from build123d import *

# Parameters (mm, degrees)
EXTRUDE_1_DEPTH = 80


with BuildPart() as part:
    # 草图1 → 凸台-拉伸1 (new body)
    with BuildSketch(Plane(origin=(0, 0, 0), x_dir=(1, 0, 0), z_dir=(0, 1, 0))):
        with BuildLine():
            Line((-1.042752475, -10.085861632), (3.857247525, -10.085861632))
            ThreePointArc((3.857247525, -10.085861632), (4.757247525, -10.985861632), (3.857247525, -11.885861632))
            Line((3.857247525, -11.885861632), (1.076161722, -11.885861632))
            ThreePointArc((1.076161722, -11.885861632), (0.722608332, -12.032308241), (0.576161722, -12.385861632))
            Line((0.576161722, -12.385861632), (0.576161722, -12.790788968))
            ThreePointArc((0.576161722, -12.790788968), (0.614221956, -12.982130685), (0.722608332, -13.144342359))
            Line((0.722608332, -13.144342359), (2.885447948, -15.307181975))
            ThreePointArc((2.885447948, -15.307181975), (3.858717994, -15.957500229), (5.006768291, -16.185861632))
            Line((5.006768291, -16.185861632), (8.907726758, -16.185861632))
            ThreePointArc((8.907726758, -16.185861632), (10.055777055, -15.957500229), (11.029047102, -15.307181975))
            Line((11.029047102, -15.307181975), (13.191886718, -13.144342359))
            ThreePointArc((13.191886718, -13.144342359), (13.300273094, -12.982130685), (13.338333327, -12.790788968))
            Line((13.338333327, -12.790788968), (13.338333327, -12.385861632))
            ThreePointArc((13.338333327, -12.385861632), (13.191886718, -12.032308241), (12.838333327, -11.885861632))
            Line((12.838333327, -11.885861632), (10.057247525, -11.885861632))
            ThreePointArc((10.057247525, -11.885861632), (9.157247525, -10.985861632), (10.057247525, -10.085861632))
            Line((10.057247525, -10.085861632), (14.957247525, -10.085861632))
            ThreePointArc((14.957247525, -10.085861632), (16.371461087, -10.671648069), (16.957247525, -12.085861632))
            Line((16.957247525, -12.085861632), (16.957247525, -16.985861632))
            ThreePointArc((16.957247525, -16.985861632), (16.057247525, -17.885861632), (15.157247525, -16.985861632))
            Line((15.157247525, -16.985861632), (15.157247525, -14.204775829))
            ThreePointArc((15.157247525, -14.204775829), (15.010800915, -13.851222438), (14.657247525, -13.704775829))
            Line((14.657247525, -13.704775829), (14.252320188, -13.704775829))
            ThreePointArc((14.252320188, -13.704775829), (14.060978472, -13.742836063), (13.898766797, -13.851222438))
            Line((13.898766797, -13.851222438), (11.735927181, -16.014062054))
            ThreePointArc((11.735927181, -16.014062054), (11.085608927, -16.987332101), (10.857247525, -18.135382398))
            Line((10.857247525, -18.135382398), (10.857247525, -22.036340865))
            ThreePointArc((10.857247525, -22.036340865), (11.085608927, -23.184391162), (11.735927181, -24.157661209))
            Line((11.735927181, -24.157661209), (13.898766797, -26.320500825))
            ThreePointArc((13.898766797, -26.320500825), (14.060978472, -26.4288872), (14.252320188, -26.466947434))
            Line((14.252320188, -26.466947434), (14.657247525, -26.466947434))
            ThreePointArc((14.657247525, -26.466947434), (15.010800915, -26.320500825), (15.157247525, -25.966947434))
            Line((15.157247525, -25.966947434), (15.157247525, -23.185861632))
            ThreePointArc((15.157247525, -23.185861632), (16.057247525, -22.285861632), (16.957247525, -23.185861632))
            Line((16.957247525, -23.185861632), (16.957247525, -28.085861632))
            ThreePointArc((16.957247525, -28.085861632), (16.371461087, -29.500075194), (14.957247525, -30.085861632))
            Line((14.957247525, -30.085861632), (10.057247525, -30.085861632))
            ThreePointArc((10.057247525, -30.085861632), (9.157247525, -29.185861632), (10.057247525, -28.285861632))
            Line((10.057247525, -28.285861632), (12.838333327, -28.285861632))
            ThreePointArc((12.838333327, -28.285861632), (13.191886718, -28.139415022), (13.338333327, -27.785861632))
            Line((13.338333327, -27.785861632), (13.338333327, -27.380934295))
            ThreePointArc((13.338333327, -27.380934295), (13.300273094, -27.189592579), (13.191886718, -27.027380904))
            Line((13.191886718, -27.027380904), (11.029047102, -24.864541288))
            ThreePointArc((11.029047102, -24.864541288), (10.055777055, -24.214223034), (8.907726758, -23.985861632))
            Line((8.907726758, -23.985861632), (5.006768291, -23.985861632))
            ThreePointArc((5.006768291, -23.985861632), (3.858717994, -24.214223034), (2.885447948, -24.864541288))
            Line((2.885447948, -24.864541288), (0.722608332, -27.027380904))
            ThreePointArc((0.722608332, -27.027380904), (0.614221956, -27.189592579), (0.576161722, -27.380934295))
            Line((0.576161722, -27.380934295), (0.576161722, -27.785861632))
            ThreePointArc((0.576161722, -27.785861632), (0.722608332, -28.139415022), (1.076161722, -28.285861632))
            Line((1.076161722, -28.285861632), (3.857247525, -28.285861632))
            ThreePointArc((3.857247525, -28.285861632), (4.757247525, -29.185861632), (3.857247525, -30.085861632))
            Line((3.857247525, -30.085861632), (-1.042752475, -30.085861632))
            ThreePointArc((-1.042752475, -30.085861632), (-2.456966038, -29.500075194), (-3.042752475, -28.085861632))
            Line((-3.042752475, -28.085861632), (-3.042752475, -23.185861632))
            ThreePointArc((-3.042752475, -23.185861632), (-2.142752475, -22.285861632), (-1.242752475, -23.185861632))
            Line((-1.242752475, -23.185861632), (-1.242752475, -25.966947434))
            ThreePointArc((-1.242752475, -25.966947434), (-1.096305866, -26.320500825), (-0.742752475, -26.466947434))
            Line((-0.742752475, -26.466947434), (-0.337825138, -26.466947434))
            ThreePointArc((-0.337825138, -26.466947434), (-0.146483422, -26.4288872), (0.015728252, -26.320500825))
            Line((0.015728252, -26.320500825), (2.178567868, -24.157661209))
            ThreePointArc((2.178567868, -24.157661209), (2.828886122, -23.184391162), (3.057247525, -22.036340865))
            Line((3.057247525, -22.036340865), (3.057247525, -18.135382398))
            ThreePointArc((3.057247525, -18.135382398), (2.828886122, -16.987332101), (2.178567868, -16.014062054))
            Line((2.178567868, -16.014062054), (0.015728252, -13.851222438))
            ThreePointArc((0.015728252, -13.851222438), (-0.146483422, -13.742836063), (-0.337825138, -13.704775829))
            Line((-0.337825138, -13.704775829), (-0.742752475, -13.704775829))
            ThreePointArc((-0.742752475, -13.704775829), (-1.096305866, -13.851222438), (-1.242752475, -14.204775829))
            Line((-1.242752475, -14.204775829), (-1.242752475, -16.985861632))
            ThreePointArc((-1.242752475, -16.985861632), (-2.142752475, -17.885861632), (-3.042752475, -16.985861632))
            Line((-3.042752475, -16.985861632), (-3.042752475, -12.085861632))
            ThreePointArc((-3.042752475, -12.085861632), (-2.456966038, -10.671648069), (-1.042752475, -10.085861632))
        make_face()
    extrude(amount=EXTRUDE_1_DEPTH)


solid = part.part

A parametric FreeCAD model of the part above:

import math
import FreeCAD as App
import Part
import Sketcher
from FreeCAD import Vector

doc = App.newDocument("Part")
body = doc.addObject("PartDesign::Body", "Body")

sketch1 = body.newObject("Sketcher::SketchObject", "Sketch")
sketch1.AttachmentSupport = (doc.getObject("XZ_Plane"), [""])
sketch1.MapMode = "FlatFace"
sketch1.addGeometry([
    Part.LineSegment(Vector(3.86, 10.09, 0), Vector(-1.04, 10.09, 0)),
    Part.ArcOfCircle(Part.Circle(Vector(-1.04, 12.09, 0), Vector(0, 0, 1), 2), math.radians(180), math.radians(270)),
    Part.LineSegment(Vector(-3.04, 12.09, 0), Vector(-3.04, 16.99, 0)),
    Part.ArcOfCircle(Part.Circle(Vector(-2.14, 16.99, 0), Vector(0, 0, 1), 0.9), math.radians(0), math.radians(180)),
    Part.LineSegment(Vector(-1.24, 16.99, 0), Vector(-1.24, 14.2, 0)),
    Part.ArcOfCircle(Part.Circle(Vector(-0.74, 14.2, 0), Vector(0, 0, 1), 0.5), math.radians(180), math.radians(270)),
    Part.LineSegment(Vector(-0.74, 13.7, 0), Vector(-0.34, 13.7, 0)),
    Part.ArcOfCircle(Part.Circle(Vector(-0.34, 14.2, 0), Vector(0, 0, 1), 0.5), math.radians(-90), math.radians(-45)),
    Part.LineSegment(Vector(0.02, 13.85, 0), Vector(2.18, 16.01, 0)),
    Part.ArcOfCircle(Part.Circle(Vector(0.06, 18.14, 0), Vector(0, 0, 1), 3), math.radians(-45), math.radians(0)),
    Part.LineSegment(Vector(3.06, 18.14, 0), Vector(3.06, 22.04, 0)),
    Part.ArcOfCircle(Part.Circle(Vector(0.06, 22.04, 0), Vector(0, 0, 1), 3), math.radians(0), math.radians(45)),
    Part.LineSegment(Vector(2.18, 24.16, 0), Vector(0.02, 26.32, 0)),
    Part.ArcOfCircle(Part.Circle(Vector(-0.34, 25.97, 0), Vector(0, 0, 1), 0.5), math.radians(45), math.radians(90)),
    Part.LineSegment(Vector(-0.34, 26.47, 0), Vector(-0.74, 26.47, 0)),
    Part.ArcOfCircle(Part.Circle(Vector(-0.74, 25.97, 0), Vector(0, 0, 1), 0.5), math.radians(90), math.radians(180)),
    Part.LineSegment(Vector(-1.24, 25.97, 0), Vector(-1.24, 23.19, 0)),
    Part.ArcOfCircle(Part.Circle(Vector(-2.14, 23.19, 0), Vector(0, 0, 1), 0.9), math.radians(180), math.radians(360)),
    Part.LineSegment(Vector(-3.04, 23.19, 0), Vector(-3.04, 28.09, 0)),
    Part.ArcOfCircle(Part.Circle(Vector(-1.04, 28.09, 0), Vector(0, 0, 1), 2), math.radians(90), math.radians(180)),
    Part.LineSegment(Vector(-1.04, 30.09, 0), Vector(3.86, 30.09, 0)),
    Part.ArcOfCircle(Part.Circle(Vector(3.86, 29.19, 0), Vector(0, 0, 1), 0.9), math.radians(-90), math.radians(90)),
    Part.LineSegment(Vector(3.86, 28.29, 0), Vector(1.08, 28.29, 0)),
    Part.ArcOfCircle(Part.Circle(Vector(1.08, 27.79, 0), Vector(0, 0, 1), 0.5), math.radians(90), math.radians(180)),
    Part.LineSegment(Vector(0.58, 27.79, 0), Vector(0.58, 27.38, 0)),
    Part.ArcOfCircle(Part.Circle(Vector(1.08, 27.38, 0), Vector(0, 0, 1), 0.5), math.radians(-180), math.radians(-135)),
    Part.LineSegment(Vector(0.72, 27.03, 0), Vector(2.89, 24.86, 0)),
    Part.ArcOfCircle(Part.Circle(Vector(5.01, 26.99, 0), Vector(0, 0, 1), 3), math.radians(-135), math.radians(-90)),
    Part.LineSegment(Vector(5.01, 23.99, 0), Vector(8.91, 23.99, 0)),
    Part.ArcOfCircle(Part.Circle(Vector(8.91, 26.99, 0), Vector(0, 0, 1), 3), math.radians(-90), math.radians(-45)),
    Part.LineSegment(Vector(11.03, 24.86, 0), Vector(13.19, 27.03, 0)),
    Part.ArcOfCircle(Part.Circle(Vector(12.84, 27.38, 0), Vector(0, 0, 1), 0.5), math.radians(-45), math.radians(0)),
    Part.LineSegment(Vector(13.34, 27.38, 0), Vector(13.34, 27.79, 0)),
    Part.ArcOfCircle(Part.Circle(Vector(12.84, 27.79, 0), Vector(0, 0, 1), 0.5), math.radians(0), math.radians(90)),
    Part.LineSegment(Vector(12.84, 28.29, 0), Vector(10.06, 28.29, 0)),
    Part.ArcOfCircle(Part.Circle(Vector(10.06, 29.19, 0), Vector(0, 0, 1), 0.9), math.radians(90), math.radians(270)),
    Part.LineSegment(Vector(10.06, 30.09, 0), Vector(14.96, 30.09, 0)),
    Part.ArcOfCircle(Part.Circle(Vector(14.96, 28.09, 0), Vector(0, 0, 1), 2), math.radians(0), math.radians(90)),
    Part.LineSegment(Vector(16.96, 28.09, 0), Vector(16.96, 23.19, 0)),
    Part.ArcOfCircle(Part.Circle(Vector(16.06, 23.19, 0), Vector(0, 0, 1), 0.9), math.radians(180), math.radians(360)),
    Part.LineSegment(Vector(15.16, 23.19, 0), Vector(15.16, 25.97, 0)),
    Part.ArcOfCircle(Part.Circle(Vector(14.66, 25.97, 0), Vector(0, 0, 1), 0.5), math.radians(0), math.radians(90)),
    Part.LineSegment(Vector(14.66, 26.47, 0), Vector(14.25, 26.47, 0)),
    Part.ArcOfCircle(Part.Circle(Vector(14.25, 25.97, 0), Vector(0, 0, 1), 0.5), math.radians(90), math.radians(135)),
    Part.LineSegment(Vector(13.9, 26.32, 0), Vector(11.74, 24.16, 0)),
    Part.ArcOfCircle(Part.Circle(Vector(13.86, 22.04, 0), Vector(0, 0, 1), 3), math.radians(135), math.radians(180)),
    Part.LineSegment(Vector(10.86, 22.04, 0), Vector(10.86, 18.14, 0)),
    Part.ArcOfCircle(Part.Circle(Vector(13.86, 18.14, 0), Vector(0, 0, 1), 3), math.radians(180), math.radians(225)),
    Part.LineSegment(Vector(11.74, 16.01, 0), Vector(13.9, 13.85, 0)),
    Part.ArcOfCircle(Part.Circle(Vector(14.25, 14.2, 0), Vector(0, 0, 1), 0.5), math.radians(-135), math.radians(-90)),
    Part.LineSegment(Vector(14.25, 13.7, 0), Vector(14.66, 13.7, 0)),
    Part.ArcOfCircle(Part.Circle(Vector(14.66, 14.2, 0), Vector(0, 0, 1), 0.5), math.radians(-90), math.radians(0)),
    Part.LineSegment(Vector(15.16, 14.2, 0), Vector(15.16, 16.99, 0)),
    Part.ArcOfCircle(Part.Circle(Vector(16.06, 16.99, 0), Vector(0, 0, 1), 0.9), math.radians(0), math.radians(180)),
    Part.LineSegment(Vector(16.96, 16.99, 0), Vector(16.96, 12.09, 0)),
    Part.ArcOfCircle(Part.Circle(Vector(14.96, 12.09, 0), Vector(0, 0, 1), 2), math.radians(-90), math.radians(0)),
    Part.LineSegment(Vector(14.96, 10.09, 0), Vector(10.06, 10.09, 0)),
    Part.ArcOfCircle(Part.Circle(Vector(10.06, 10.99, 0), Vector(0, 0, 1), 0.9), math.radians(90), math.radians(270)),
    Part.LineSegment(Vector(10.06, 11.89, 0), Vector(12.84, 11.89, 0)),
    Part.ArcOfCircle(Part.Circle(Vector(12.84, 12.39, 0), Vector(0, 0, 1), 0.5), math.radians(-90), math.radians(0)),
    Part.LineSegment(Vector(13.34, 12.39, 0), Vector(13.34, 12.79, 0)),
    Part.ArcOfCircle(Part.Circle(Vector(12.84, 12.79, 0), Vector(0, 0, 1), 0.5), math.radians(0), math.radians(45)),
    Part.LineSegment(Vector(13.19, 13.14, 0), Vector(11.03, 15.31, 0)),
    Part.ArcOfCircle(Part.Circle(Vector(8.91, 13.19, 0), Vector(0, 0, 1), 3), math.radians(45), math.radians(90)),
    Part.LineSegment(Vector(8.91, 16.19, 0), Vector(5.01, 16.19, 0)),
    Part.ArcOfCircle(Part.Circle(Vector(5.01, 13.19, 0), Vector(0, 0, 1), 3), math.radians(90), math.radians(135)),
    Part.LineSegment(Vector(2.89, 15.31, 0), Vector(0.72, 13.14, 0)),
    Part.ArcOfCircle(Part.Circle(Vector(1.08, 12.79, 0), Vector(0, 0, 1), 0.5), math.radians(135), math.radians(180)),
    Part.LineSegment(Vector(0.58, 12.79, 0), Vector(0.58, 12.39, 0)),
    Part.ArcOfCircle(Part.Circle(Vector(1.08, 12.39, 0), Vector(0, 0, 1), 0.5), math.radians(180), math.radians(270)),
    Part.LineSegment(Vector(1.08, 11.89, 0), Vector(3.86, 11.89, 0)),
    Part.ArcOfCircle(Part.Circle(Vector(3.86, 10.99, 0), Vector(0, 0, 1), 0.9), math.radians(-90), math.radians(90)),
], False)
sketch1.addConstraint([
    Sketcher.Constraint("Tangent", 0, 2, 1, 2),
    Sketcher.Constraint("Tangent", 1, 1, 2, 1),
    Sketcher.Constraint("Tangent", 2, 2, 3, 2),
    Sketcher.Constraint("Tangent", 3, 1, 4, 1),
    Sketcher.Constraint("Tangent", 4, 2, 5, 1),
    Sketcher.Constraint("Tangent", 5, 2, 6, 1),
    Sketcher.Constraint("Tangent", 6, 2, 7, 1),
    Sketcher.Constraint("Tangent", 7, 2, 8, 1),
    Sketcher.Constraint("Tangent", 8, 2, 9, 1),
    Sketcher.Constraint("Tangent", 9, 2, 10, 1),
    Sketcher.Constraint("Tangent", 10, 2, 11, 1),
    Sketcher.Constraint("Tangent", 11, 2, 12, 1),
    Sketcher.Constraint("Tangent", 12, 2, 13, 1),
    Sketcher.Constraint("Tangent", 13, 2, 14, 1),
    Sketcher.Constraint("Tangent", 14, 2, 15, 1),
    Sketcher.Constraint("Tangent", 15, 2, 16, 1),
    Sketcher.Constraint("Tangent", 16, 2, 17, 2),
    Sketcher.Constraint("Tangent", 17, 1, 18, 1),
    Sketcher.Constraint("Tangent", 18, 2, 19, 2),
    Sketcher.Constraint("Tangent", 19, 1, 20, 1),
    Sketcher.Constraint("Tangent", 20, 2, 21, 2),
    Sketcher.Constraint("Tangent", 21, 1, 22, 1),
    Sketcher.Constraint("Tangent", 22, 2, 23, 1),
    Sketcher.Constraint("Tangent", 23, 2, 24, 1),
    Sketcher.Constraint("Tangent", 24, 2, 25, 1),
    Sketcher.Constraint("Tangent", 25, 2, 26, 1),
    Sketcher.Constraint("Tangent", 26, 2, 27, 1),
    Sketcher.Constraint("Tangent", 27, 2, 28, 1),
    Sketcher.Constraint("Tangent", 28, 2, 29, 1),
    Sketcher.Constraint("Tangent", 29, 2, 30, 1),
    Sketcher.Constraint("Tangent", 30, 2, 31, 1),
    Sketcher.Constraint("Tangent", 31, 2, 32, 1),
    Sketcher.Constraint("Tangent", 32, 2, 33, 1),
    Sketcher.Constraint("Tangent", 33, 2, 34, 1),
    Sketcher.Constraint("Tangent", 34, 2, 35, 2),
    Sketcher.Constraint("Tangent", 35, 1, 36, 1),
    Sketcher.Constraint("Tangent", 36, 2, 37, 2),
    Sketcher.Constraint("Tangent", 37, 1, 38, 1),
    Sketcher.Constraint("Tangent", 38, 2, 39, 2),
    Sketcher.Constraint("Tangent", 39, 1, 40, 1),
    Sketcher.Constraint("Tangent", 40, 2, 41, 1),
    Sketcher.Constraint("Tangent", 41, 2, 42, 1),
    Sketcher.Constraint("Tangent", 42, 2, 43, 1),
    Sketcher.Constraint("Tangent", 43, 2, 44, 1),
    Sketcher.Constraint("Tangent", 44, 2, 45, 1),
    Sketcher.Constraint("Tangent", 45, 2, 46, 1),
    Sketcher.Constraint("Tangent", 46, 2, 47, 1),
    Sketcher.Constraint("Tangent", 47, 2, 48, 1),
    Sketcher.Constraint("Tangent", 48, 2, 49, 1),
    Sketcher.Constraint("Tangent", 49, 2, 50, 1),
    Sketcher.Constraint("Tangent", 50, 2, 51, 1),
    Sketcher.Constraint("Tangent", 51, 2, 52, 1),
    Sketcher.Constraint("Tangent", 52, 2, 53, 2),
    Sketcher.Constraint("Tangent", 53, 1, 54, 1),
    Sketcher.Constraint("Tangent", 54, 2, 55, 2),
    Sketcher.Constraint("Tangent", 55, 1, 56, 1),
    Sketcher.Constraint("Tangent", 56, 2, 57, 2),
    Sketcher.Constraint("Tangent", 57, 1, 58, 1),
    Sketcher.Constraint("Tangent", 58, 2, 59, 1),
    Sketcher.Constraint("Tangent", 59, 2, 60, 1),
    Sketcher.Constraint("Tangent", 60, 2, 61, 1),
    Sketcher.Constraint("Tangent", 61, 2, 62, 1),
    Sketcher.Constraint("Tangent", 62, 2, 63, 1),
    Sketcher.Constraint("Tangent", 63, 2, 64, 1),
    Sketcher.Constraint("Tangent", 64, 2, 65, 1),
    Sketcher.Constraint("Tangent", 65, 2, 66, 1),
    Sketcher.Constraint("Tangent", 66, 2, 67, 1),
    Sketcher.Constraint("Tangent", 67, 2, 68, 1),
    Sketcher.Constraint("Tangent", 68, 2, 69, 1),
    Sketcher.Constraint("Tangent", 69, 2, 70, 1),
    Sketcher.Constraint("Tangent", 70, 2, 71, 2),
    Sketcher.Constraint("Tangent", 71, 1, 0, 1),
    Sketcher.Constraint("Horizontal", 0),
    Sketcher.Constraint("Vertical", 2),
    Sketcher.Constraint("Vertical", 4),
    Sketcher.Constraint("Horizontal", 6),
    Sketcher.Constraint("Vertical", 10),
    Sketcher.Constraint("Horizontal", 14),
    Sketcher.Constraint("Vertical", 16),
    Sketcher.Constraint("Vertical", 18),
    Sketcher.Constraint("Horizontal", 20),
    Sketcher.Constraint("Horizontal", 22),
    Sketcher.Constraint("Vertical", 24),
    Sketcher.Constraint("Horizontal", 28),
    Sketcher.Constraint("Vertical", 32),
    Sketcher.Constraint("Horizontal", 34),
    Sketcher.Constraint("Horizontal", 36),
    Sketcher.Constraint("Vertical", 38),
    Sketcher.Constraint("Vertical", 40),
    Sketcher.Constraint("Horizontal", 42),
    Sketcher.Constraint("Vertical", 46),
    Sketcher.Constraint("Horizontal", 50),
    Sketcher.Constraint("Vertical", 52),
    Sketcher.Constraint("Vertical", 54),
    Sketcher.Constraint("Horizontal", 56),
    Sketcher.Constraint("Horizontal", 58),
    Sketcher.Constraint("Vertical", 60),
    Sketcher.Constraint("Horizontal", 64),
    Sketcher.Constraint("Vertical", 68),
    Sketcher.Constraint("Horizontal", 70),
    Sketcher.Constraint("Equal", 5, 7),
    Sketcher.Constraint("Equal", 9, 11),
    Sketcher.Constraint("Equal", 7, 13),
    Sketcher.Constraint("Equal", 13, 15),
    Sketcher.Constraint("Equal", 3, 17),
    Sketcher.Constraint("Equal", 1, 19),
    Sketcher.Constraint("Equal", 17, 21),
    Sketcher.Constraint("Equal", 15, 23),
    Sketcher.Constraint("Equal", 23, 25),
    Sketcher.Constraint("Equal", 11, 27),
    Sketcher.Constraint("Equal", 27, 29),
    Sketcher.Constraint("Equal", 25, 31),
    Sketcher.Constraint("Equal", 31, 33),
    Sketcher.Constraint("Equal", 21, 35),
    Sketcher.Constraint("Equal", 19, 37),
    Sketcher.Constraint("Equal", 35, 39),
    Sketcher.Constraint("Equal", 33, 41),
    Sketcher.Constraint("Equal", 41, 43),
    Sketcher.Constraint("Equal", 29, 45),
    Sketcher.Constraint("Equal", 45, 47),
    Sketcher.Constraint("Equal", 43, 49),
    Sketcher.Constraint("Equal", 49, 51),
    Sketcher.Constraint("Equal", 39, 53),
    Sketcher.Constraint("Equal", 37, 55),
    Sketcher.Constraint("Equal", 53, 57),
    Sketcher.Constraint("Equal", 51, 59),
    Sketcher.Constraint("Equal", 59, 61),
    Sketcher.Constraint("Equal", 47, 63),
    Sketcher.Constraint("Equal", 63, 65),
    Sketcher.Constraint("Equal", 61, 67),
    Sketcher.Constraint("Equal", 67, 69),
    Sketcher.Constraint("Equal", 57, 71),
    Sketcher.Constraint("Perpendicular", 8, 12),
    Sketcher.Constraint("Parallel", 12, 26),
    Sketcher.Constraint("Perpendicular", 26, 30),
    Sketcher.Constraint("Parallel", 30, 44),
    Sketcher.Constraint("Perpendicular", 44, 48),
    Sketcher.Constraint("Parallel", 48, 62),
    Sketcher.Constraint("Perpendicular", 62, 66),
    Sketcher.Constraint("Horizontal", 25, 3, 31, 3),
    Sketcher.Constraint("Horizontal", 23, 3, 33, 3),
    Sketcher.Constraint("Horizontal", 17, 3, 39, 3),
    Sketcher.Constraint("Horizontal", 15, 3, 41, 3),
    Sketcher.Constraint("Horizontal", 11, 3, 45, 3),
    Sketcher.Constraint("Horizontal", 9, 3, 47, 3),
    Sketcher.Constraint("Horizontal", 7, 3, 49, 3),
    Sketcher.Constraint("Horizontal", 3, 3, 53, 3),
    Sketcher.Constraint("Horizontal", 1, 3, 55, 3),
    Sketcher.Constraint("Horizontal", 61, 3, 67, 3),
    Sketcher.Constraint("Horizontal", 26, 2, 29, 2),
    Sketcher.Constraint("Vertical", 7, 3, 13, 3),
    Sketcher.Constraint("Vertical", 5, 3, 15, 3),
    Sketcher.Constraint("Vertical", 41, 3, 51, 3),
    Sketcher.Constraint("Vertical", 35, 3, 57, 3),
    Sketcher.Constraint("Vertical", 33, 3, 59, 3),
    Sketcher.Constraint("Vertical", 29, 3, 63, 3),
    Sketcher.Constraint("Vertical", 27, 3, 65, 3),
    Sketcher.Constraint("Vertical", 21, 3, 71, 3),
    Sketcher.Constraint("Equal", 22, 34),
    Sketcher.Constraint("Equal", 20, 36),
    Sketcher.Constraint("Equal", 14, 42),
    Sketcher.Constraint("Equal", 56, 2),
    Sketcher.Constraint("Equal", 70, 4),
    Sketcher.Constraint("Equal", 64, 10),
    Sketcher.Constraint("Equal", 4, 16),
    Sketcher.Constraint("Equal", 2, 18),
    Sketcher.Constraint("Equal", 50, 24),
    Sketcher.Constraint("Equal", 32, 60),
    Sketcher.Constraint("Equal", 12, 26),
    Sketcher.Constraint("Radius", 1, 2.0),
    Sketcher.Constraint("Radius", 9, 3.0),
    Sketcher.Constraint("Radius", 3, 0.9),
    Sketcher.Constraint("Radius", 5, 0.5),
    Sketcher.Constraint("DistanceX", 0, 2, 0, 1, 4.9),
    Sketcher.Constraint("DistanceX", 28, 1, 28, 2, 3.900958),
    Sketcher.Constraint("DistanceY", -1, 1, 12, 2, 26.320501),
    Sketcher.Constraint("DistanceX", 6, 1, 6, 2, 0.404927),
    Sketcher.Constraint("DistanceX", 22, 2, 22, 1, 2.781086),
    Sketcher.Constraint("DistanceY", -1, 1, 1, 3, 12.085862),
    Sketcher.Constraint("DistanceX", -1, 1, 23, 3, 1.076162),
])
pad1 = body.newObject("PartDesign::Pad", "Pad")
pad1.Profile = sketch1
pad1.Length = 80
pad1.Reversed = True

doc.recompute()
